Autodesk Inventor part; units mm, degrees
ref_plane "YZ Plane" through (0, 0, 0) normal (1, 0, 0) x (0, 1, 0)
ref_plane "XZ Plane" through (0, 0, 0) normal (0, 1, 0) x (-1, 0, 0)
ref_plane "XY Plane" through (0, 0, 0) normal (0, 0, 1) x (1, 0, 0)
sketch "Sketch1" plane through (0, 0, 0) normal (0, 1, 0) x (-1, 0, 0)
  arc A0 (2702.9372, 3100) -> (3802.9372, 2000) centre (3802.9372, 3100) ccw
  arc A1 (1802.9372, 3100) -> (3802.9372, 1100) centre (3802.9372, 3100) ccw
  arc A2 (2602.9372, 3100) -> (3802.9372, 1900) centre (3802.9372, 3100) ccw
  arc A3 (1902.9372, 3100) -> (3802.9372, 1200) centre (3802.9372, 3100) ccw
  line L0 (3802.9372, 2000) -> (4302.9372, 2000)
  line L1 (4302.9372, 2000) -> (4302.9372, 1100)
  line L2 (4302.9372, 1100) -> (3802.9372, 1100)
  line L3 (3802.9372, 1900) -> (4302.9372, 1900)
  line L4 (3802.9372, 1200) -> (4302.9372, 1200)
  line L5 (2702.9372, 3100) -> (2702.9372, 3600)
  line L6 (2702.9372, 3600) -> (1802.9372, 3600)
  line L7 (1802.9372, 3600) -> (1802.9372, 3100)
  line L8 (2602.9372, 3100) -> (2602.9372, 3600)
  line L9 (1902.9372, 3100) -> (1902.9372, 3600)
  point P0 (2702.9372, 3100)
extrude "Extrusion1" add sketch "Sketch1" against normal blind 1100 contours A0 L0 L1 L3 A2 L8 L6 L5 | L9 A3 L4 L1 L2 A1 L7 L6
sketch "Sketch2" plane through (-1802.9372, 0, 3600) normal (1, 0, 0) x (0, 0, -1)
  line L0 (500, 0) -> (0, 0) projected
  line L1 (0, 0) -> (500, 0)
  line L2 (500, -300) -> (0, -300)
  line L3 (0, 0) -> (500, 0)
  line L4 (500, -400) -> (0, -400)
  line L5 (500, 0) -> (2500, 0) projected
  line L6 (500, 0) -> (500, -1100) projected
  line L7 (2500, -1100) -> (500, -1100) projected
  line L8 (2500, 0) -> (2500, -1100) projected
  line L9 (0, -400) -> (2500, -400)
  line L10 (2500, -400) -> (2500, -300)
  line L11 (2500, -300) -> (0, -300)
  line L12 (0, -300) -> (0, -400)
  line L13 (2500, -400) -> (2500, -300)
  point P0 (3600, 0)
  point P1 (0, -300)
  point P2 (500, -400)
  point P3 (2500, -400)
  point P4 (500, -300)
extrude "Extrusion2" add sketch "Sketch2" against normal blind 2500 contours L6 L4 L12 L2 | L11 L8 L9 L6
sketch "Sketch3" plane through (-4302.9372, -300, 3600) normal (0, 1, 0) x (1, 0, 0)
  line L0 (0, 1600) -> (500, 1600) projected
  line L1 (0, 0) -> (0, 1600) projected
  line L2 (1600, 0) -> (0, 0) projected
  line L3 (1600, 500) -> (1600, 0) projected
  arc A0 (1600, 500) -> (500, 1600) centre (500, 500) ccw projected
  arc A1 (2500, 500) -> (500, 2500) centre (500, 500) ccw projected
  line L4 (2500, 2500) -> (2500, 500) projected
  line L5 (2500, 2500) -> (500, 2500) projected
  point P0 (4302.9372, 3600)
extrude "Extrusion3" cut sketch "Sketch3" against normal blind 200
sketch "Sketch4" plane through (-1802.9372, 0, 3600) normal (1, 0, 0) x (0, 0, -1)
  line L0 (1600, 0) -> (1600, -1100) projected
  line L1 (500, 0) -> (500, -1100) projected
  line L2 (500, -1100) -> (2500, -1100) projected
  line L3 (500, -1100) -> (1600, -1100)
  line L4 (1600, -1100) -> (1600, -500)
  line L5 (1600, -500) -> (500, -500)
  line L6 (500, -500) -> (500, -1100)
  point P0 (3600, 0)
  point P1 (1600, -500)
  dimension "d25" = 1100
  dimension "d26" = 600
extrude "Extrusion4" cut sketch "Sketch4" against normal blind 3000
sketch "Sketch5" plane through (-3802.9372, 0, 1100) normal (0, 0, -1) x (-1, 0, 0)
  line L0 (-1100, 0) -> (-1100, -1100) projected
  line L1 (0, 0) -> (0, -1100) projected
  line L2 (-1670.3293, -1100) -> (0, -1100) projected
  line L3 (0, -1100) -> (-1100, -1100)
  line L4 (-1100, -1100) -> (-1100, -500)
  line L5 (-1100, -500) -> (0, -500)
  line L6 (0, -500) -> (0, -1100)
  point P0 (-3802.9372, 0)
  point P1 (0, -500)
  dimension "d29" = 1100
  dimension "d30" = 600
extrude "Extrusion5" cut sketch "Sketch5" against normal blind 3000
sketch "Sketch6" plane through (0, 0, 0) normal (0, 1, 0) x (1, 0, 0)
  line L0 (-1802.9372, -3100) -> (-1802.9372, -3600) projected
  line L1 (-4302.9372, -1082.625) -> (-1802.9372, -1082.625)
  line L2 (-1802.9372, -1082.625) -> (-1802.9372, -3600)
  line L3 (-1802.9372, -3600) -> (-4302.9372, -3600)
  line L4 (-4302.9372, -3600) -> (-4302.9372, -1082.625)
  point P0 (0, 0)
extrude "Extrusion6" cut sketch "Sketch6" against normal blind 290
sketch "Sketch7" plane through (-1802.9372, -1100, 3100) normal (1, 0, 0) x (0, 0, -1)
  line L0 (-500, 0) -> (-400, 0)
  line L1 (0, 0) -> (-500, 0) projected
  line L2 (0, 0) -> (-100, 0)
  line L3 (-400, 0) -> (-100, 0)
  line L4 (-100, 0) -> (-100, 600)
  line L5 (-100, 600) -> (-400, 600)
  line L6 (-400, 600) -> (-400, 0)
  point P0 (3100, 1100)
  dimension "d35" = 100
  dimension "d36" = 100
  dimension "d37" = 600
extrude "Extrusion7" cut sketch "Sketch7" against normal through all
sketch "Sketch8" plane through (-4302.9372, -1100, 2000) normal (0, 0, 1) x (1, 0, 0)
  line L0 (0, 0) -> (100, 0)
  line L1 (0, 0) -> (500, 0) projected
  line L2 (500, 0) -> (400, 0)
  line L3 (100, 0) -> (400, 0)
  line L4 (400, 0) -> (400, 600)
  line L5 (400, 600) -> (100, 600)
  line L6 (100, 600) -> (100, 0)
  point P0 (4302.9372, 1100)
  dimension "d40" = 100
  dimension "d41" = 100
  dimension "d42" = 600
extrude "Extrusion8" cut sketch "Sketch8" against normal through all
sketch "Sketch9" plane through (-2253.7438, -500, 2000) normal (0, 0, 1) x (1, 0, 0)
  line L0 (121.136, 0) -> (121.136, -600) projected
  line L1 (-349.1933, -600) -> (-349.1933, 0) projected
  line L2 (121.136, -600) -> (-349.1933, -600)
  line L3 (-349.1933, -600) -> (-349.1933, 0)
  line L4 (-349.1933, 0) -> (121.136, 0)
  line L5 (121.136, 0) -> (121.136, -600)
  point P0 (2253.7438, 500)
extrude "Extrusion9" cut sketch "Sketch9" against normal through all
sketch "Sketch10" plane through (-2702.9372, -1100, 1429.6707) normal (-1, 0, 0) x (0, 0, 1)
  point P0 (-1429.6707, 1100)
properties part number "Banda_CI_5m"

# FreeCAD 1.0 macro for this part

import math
import FreeCAD as App
import Part
import Sketcher
from FreeCAD import Vector

doc = App.newDocument("Part")
params = doc.addObject("Spreadsheet::Sheet", "Params")
for row, (alias, value) in enumerate([
    ("sketch1_radius", "1100 mm"),
    ("sketch1_radius2", "1200 mm"),
    ("sketch1_radius3", "2000 mm"),
    ("sketch1_width", "500 mm"),
    ("pad1_length", "1100 mm"),
    ("sketch2_width", "100 mm"),
    ("sketch2_height", "2500 mm"),
    ("pad2_length", "2500 mm"),
    ("sketch3_radius", "1100 mm"),
    ("sketch3_radius2", "2000 mm"),
    ("sketch3_width", "500 mm"),
    ("sketch3_width2", "2000 mm"),
    ("pocket1_length", "200 mm"),
    ("sketch4_width", "600 mm"),
    ("sketch4_height", "1100 mm"),
    ("pocket2_length", "3000 mm"),
    ("sketch5_width", "1100 mm"),
    ("sketch5_height", "600 mm"),
    ("pocket3_length", "3000 mm"),
    ("sketch6_width", "2500 mm"),
    ("pocket4_length", "290 mm"),
    ("sketch7_width", "600 mm"),
    ("sketch7_height", "300 mm"),
    ("sketch8_height", "600 mm"),
    ("sketch8_width", "300 mm"),
    ("sketch9_height", "600 mm"),
], start=1):
    params.set(f"A{row}", alias)
    params.set(f"B{row}", "=" + value)
    params.setAlias(f"B{row}", alias)

body = doc.addObject("PartDesign::Body", "Body")
body.AllowCompound = True

# Sketch on XZ plane
sketch1 = doc.addObject("Sketcher::SketchObject", "Sketch")
body.addObject(sketch1)
sketch1.AttachmentSupport = (doc.XZ_Plane, [""])
sketch1.MapMode = "FlatFace"
sketch1.addGeometry([
    Part.ArcOfCircle(Part.Circle(Vector(-3802.9372, 3100, 0), Vector(0, 0, 1), 1100), math.radians(-90), math.radians(0)),  # 0
    Part.LineSegment(Vector(-2702.9372, 3100, 0), Vector(-2702.9372, 3600, 0)),  # 1
    Part.LineSegment(Vector(-2702.9372, 3600, 0), Vector(-2602.9372, 3600, 0)),  # 2
    Part.LineSegment(Vector(-2602.9372, 3600, 0), Vector(-2602.9372, 3100, 0)),  # 3
    Part.ArcOfCircle(Part.Circle(Vector(-3802.9372, 3100, 0), Vector(0, 0, 1), 1200), math.radians(-90), math.radians(0)),  # 4
    Part.LineSegment(Vector(-3802.9372, 1900, 0), Vector(-4302.9372, 1900, 0)),  # 5
    Part.LineSegment(Vector(-4302.9372, 1900, 0), Vector(-4302.9372, 2000, 0)),  # 6
    Part.LineSegment(Vector(-4302.9372, 2000, 0), Vector(-3802.9372, 2000, 0)),  # 7
    Part.LineSegment(Vector(-1902.9372, 3100, 0), Vector(-1902.9372, 3600, 0)),  # 8
    Part.LineSegment(Vector(-1902.9372, 3600, 0), Vector(-1802.9372, 3600, 0)),  # 9
    Part.LineSegment(Vector(-1802.9372, 3600, 0), Vector(-1802.9372, 3100, 0)),  # 10
    Part.ArcOfCircle(Part.Circle(Vector(-3802.9372, 3100, 0), Vector(0, 0, 1), 2000), math.radians(-90), math.radians(0)),  # 11
    Part.LineSegment(Vector(-3802.9372, 1100, 0), Vector(-4302.9372, 1100, 0)),  # 12
    Part.LineSegment(Vector(-4302.9372, 1100, 0), Vector(-4302.9372, 1200, 0)),  # 13
    Part.LineSegment(Vector(-4302.9372, 1200, 0), Vector(-3802.9372, 1200, 0)),  # 14
    Part.ArcOfCircle(Part.Circle(Vector(-3802.9372, 3100, 0), Vector(0, 0, 1), 1900), math.radians(-90), math.radians(0)),  # 15
], False)
sketch1.addConstraint([
    Sketcher.Constraint("Tangent", 0, 2, 1, 1),
    Sketcher.Constraint("Coincident", 1, 2, 2, 1),
    Sketcher.Constraint("Coincident", 2, 2, 3, 1),
    Sketcher.Constraint("Tangent", 3, 2, 4, 2),
    Sketcher.Constraint("Tangent", 4, 1, 5, 1),
    Sketcher.Constraint("Coincident", 5, 2, 6, 1),
    Sketcher.Constraint("Coincident", 6, 2, 7, 1),
    Sketcher.Constraint("Tangent", 7, 2, 0, 1),
    Sketcher.Constraint("Coincident", 8, 2, 9, 1),
    Sketcher.Constraint("Coincident", 9, 2, 10, 1),
    Sketcher.Constraint("Tangent", 10, 2, 11, 2),
    Sketcher.Constraint("Tangent", 11, 1, 12, 1),
    Sketcher.Constraint("Coincident", 12, 2, 13, 1),
    Sketcher.Constraint("Coincident", 13, 2, 14, 1),
    Sketcher.Constraint("Tangent", 14, 2, 15, 1),
    Sketcher.Constraint("Tangent", 15, 2, 8, 1),
    Sketcher.Constraint("Vertical", 1),
    Sketcher.Constraint("Horizontal", 2),
    Sketcher.Constraint("Vertical", 3),
    Sketcher.Constraint("Horizontal", 5),
    Sketcher.Constraint("Vertical", 6),
    Sketcher.Constraint("Horizontal", 7),
    Sketcher.Constraint("Vertical", 8),
    Sketcher.Constraint("Horizontal", 9),
    Sketcher.Constraint("Vertical", 10),
    Sketcher.Constraint("Horizontal", 12),
    Sketcher.Constraint("Vertical", 13),
    Sketcher.Constraint("Horizontal", 14),
    Sketcher.Constraint("Coincident", 4, 3, 0, 3),
    Sketcher.Constraint("Coincident", 11, 3, 0, 3),
    Sketcher.Constraint("Coincident", 15, 3, 0, 3),
    Sketcher.Constraint("Horizontal", 2, 2, 8, 2),
    Sketcher.Constraint("Vertical", 6, 2, 12, 2),
    Sketcher.Constraint("Equal", 2, 9),
    Sketcher.Constraint("Equal", 14, 1),
    Sketcher.Constraint("Radius", 0, 1100.0),
    Sketcher.Constraint("Radius", 4, 1200.0),
    Sketcher.Constraint("Radius", 11, 2000.0),
    Sketcher.Constraint("DistanceX", 5, 2, 5, 1, 500.0),
    Sketcher.Constraint("DistanceY", -1, 1, 0, 3, 3100.0),
    Sketcher.Constraint("DistanceX", 0, 3, -1, 1, 3802.9372),
])
sketch1.setExpression("Constraints[35]", "Params.sketch1_radius")
sketch1.setExpression("Constraints[36]", "Params.sketch1_radius2")
sketch1.setExpression("Constraints[37]", "Params.sketch1_radius3")
sketch1.setExpression("Constraints[38]", "Params.sketch1_width")
pad1 = doc.addObject("PartDesign::Pad", "Pad")
body.addObject(pad1)
pad1.Profile = sketch1
pad1.setExpression("Length", "Params.pad1_length")

# Sketch on YZ plane
sketch2 = doc.addObject("Sketcher::SketchObject", "Sketch001")
body.addObject(sketch2)
sketch2.AttachmentSupport = (doc.YZ_Plane, [""])
sketch2.MapMode = "FlatFace"
sketch2.AttachmentOffset = App.Placement(Vector(0, 0, -1802.9372), App.Rotation())
sketch2.addGeometry([
    Part.LineSegment(Vector(-400, 3600, 0), Vector(-400, 1100, 0)),
    Part.LineSegment(Vector(-400, 1100, 0), Vector(-300, 1100, 0)),
    Part.LineSegment(Vector(-300, 1100, 0), Vector(-300, 3600, 0)),
    Part.LineSegment(Vector(-300, 3600, 0), Vector(-400, 3600, 0)),
], False)
sketch2.addConstraint([
    Sketcher.Constraint("Coincident", 0, 2, 1, 1),
    Sketcher.Constraint("Coincident", 1, 2, 2, 1),
    Sketcher.Constraint("Coincident", 2, 2, 3, 1),
    Sketcher.Constraint("Coincident", 3, 2, 0, 1),
    Sketcher.Constraint("Vertical", 0),
    Sketcher.Constraint("Horizontal", 1),
    Sketcher.Constraint("Vertical", 2),
    Sketcher.Constraint("Horizontal", 3),
    Sketcher.Constraint("DistanceX", 1, 1, 1, 2, 100.0),
    Sketcher.Constraint("DistanceY", 0, 2, 0, 1, 2500.0),
    Sketcher.Constraint("DistanceX", 0, 2, -1, 1, 400.0),
    Sketcher.Constraint("DistanceY", -1, 1, 0, 2, 1100.0),
])
sketch2.setExpression("Constraints[8]", "Params.sketch2_width")
sketch2.setExpression("Constraints[9]", "Params.sketch2_height")
pad2 = doc.addObject("PartDesign::Pad", "Pad001")
body.addObject(pad2)
pad2.Profile = sketch2
pad2.setExpression("Length", "Params.pad2_length")
pad2.Reversed = True

# Sketch on XZ plane
sketch3 = doc.addObject("Sketcher::SketchObject", "Sketch002")
body.addObject(sketch3)
sketch3.AttachmentSupport = (doc.XZ_Plane, [""])
sketch3.MapMode = "FlatFace"
sketch3.AttachmentOffset = App.Placement(Vector(0, 0, 300), App.Rotation())
sketch3.addGeometry([
    Part.LineSegment(Vector(-3802.9372, 2000, 0), Vector(-4302.9372, 2000, 0)),  # 0
    Part.LineSegment(Vector(-4302.9372, 2000, 0), Vector(-4302.9372, 3600, 0)),  # 1
    Part.LineSegment(Vector(-4302.9372, 3600, 0), Vector(-2702.9372, 3600, 0)),  # 2
    Part.LineSegment(Vector(-2702.9372, 3600, 0), Vector(-2702.9372, 3100, 0)),  # 3
    Part.ArcOfCircle(Part.Circle(Vector(-3802.9372, 3100, 0), Vector(0, 0, 1), 1100), math.radians(-90), math.radians(0)),  # 4
    Part.ArcOfCircle(Part.Circle(Vector(-3802.9372, 3100, 0), Vector(0, 0, 1), 2000), math.radians(-90), math.radians(0)),  # 5
    Part.LineSegment(Vector(-1802.9372, 3100, 0), Vector(-1802.9372, 1100, 0)),  # 6
    Part.LineSegment(Vector(-1802.9372, 1100, 0), Vector(-3802.9372, 1100, 0)),  # 7
], False)
sketch3.addConstraint([
    Sketcher.Constraint("Coincident", 0, 2, 1, 1),
    Sketcher.Constraint("Coincident", 1, 2, 2, 1),
    Sketcher.Constraint("Coincident", 2, 2, 3, 1),
    Sketcher.Constraint("Tangent", 3, 2, 4, 2),
    Sketcher.Constraint("Tangent", 4, 1, 0, 1),
    Sketcher.Constraint("Coincident", 5, 2, 6, 1),
    Sketcher.Constraint("Coincident", 6, 2, 7, 1),
    Sketcher.Constraint("Coincident", 7, 2, 5, 1),
    Sketcher.Constraint("Horizontal", 0),
    Sketcher.Constraint("Vertical", 1),
    Sketcher.Constraint("Horizontal", 2),
    Sketcher.Constraint("Vertical", 3),
    Sketcher.Constraint("Vertical", 6),
    Sketcher.Constraint("Horizontal", 7),
    Sketcher.Constraint("Coincident", 5, 3, 4, 3),
    Sketcher.Constraint("Equal", 2, 1),
    Sketcher.Constraint("Equal", 7, 6),
    Sketcher.Constraint("Radius", 4, 1100.0),
    Sketcher.Constraint("Radius", 5, 2000.0),
    Sketcher.Constraint("DistanceX", 0, 2, 0, 1, 500.0),
    Sketcher.Constraint("DistanceX", 7, 2, 7, 1, 2000.0),
    Sketcher.Constraint("DistanceY", -1, 1, 4, 3, 3100.0),
    Sketcher.Constraint("DistanceX", 4, 3, -1, 1, 3802.9372),
])
sketch3.setExpression("Constraints[17]", "Params.sketch3_radius")
sketch3.setExpression("Constraints[18]", "Params.sketch3_radius2")
sketch3.setExpression("Constraints[19]", "Params.sketch3_width")
sketch3.setExpression("Constraints[20]", "Params.sketch3_width2")
pocket1 = doc.addObject("PartDesign::Pocket", "Pocket")
body.addObject(pocket1)
pocket1.Profile = sketch3
pocket1.setExpression("Length", "Params.pocket1_length")
pocket1.Reversed = True

# Sketch on YZ plane
sketch4 = doc.addObject("Sketcher::SketchObject", "Sketch003")
body.addObject(sketch4)
sketch4.AttachmentSupport = (doc.YZ_Plane, [""])
sketch4.MapMode = "FlatFace"
sketch4.AttachmentOffset = App.Placement(Vector(0, 0, -1802.9372), App.Rotation())
sketch4.addGeometry([
    Part.LineSegment(Vector(-1100, 2000, 0), Vector(-500, 2000, 0)),
    Part.LineSegment(Vector(-500, 2000, 0), Vector(-500, 3100, 0)),
    Part.LineSegment(Vector(-500, 3100, 0), Vector(-1100, 3100, 0)),
    Part.LineSegment(Vector(-1100, 3100, 0), Vector(-1100, 2000, 0)),
], False)
sketch4.addConstraint([
    Sketcher.Constraint("Coincident", 0, 2, 1, 1),
    Sketcher.Constraint("Coincident", 1, 2, 2, 1),
    Sketcher.Constraint("Coincident", 2, 2, 3, 1),
    Sketcher.Constraint("Coincident", 3, 2, 0, 1),
    Sketcher.Constraint("Horizontal", 0),
    Sketcher.Constraint("Vertical", 1),
    Sketcher.Constraint("Horizontal", 2),
    Sketcher.Constraint("Vertical", 3),
    Sketcher.Constraint("DistanceX", 0, 1, 0, 2, 600.0),
    Sketcher.Constraint("DistanceY", 1, 1, 1, 2, 1100.0),
    Sketcher.Constraint("DistanceX", 2, 2, -1, 1, 1100.0),
    Sketcher.Constraint("DistanceY", -1, 1, 0, 2, 2000.0),
])
sketch4.setExpression("Constraints[8]", "Params.sketch4_width")
sketch4.setExpression("Constraints[9]", "Params.sketch4_height")
pocket2 = doc.addObject("PartDesign::Pocket", "Pocket001")
body.addObject(pocket2)
pocket2.Profile = sketch4
pocket2.setExpression("Length", "Params.pocket2_length")

# Sketch on XY plane
sketch5 = doc.addObject("Sketcher::SketchObject", "Sketch004")
body.addObject(sketch5)
sketch5.AttachmentSupport = (doc.XY_Plane, [""])
sketch5.MapMode = "FlatFace"
sketch5.AttachmentOffset = App.Placement(Vector(0, 0, 1100), App.Rotation())
sketch5.addGeometry([
    Part.LineSegment(Vector(-3802.9372, -500, 0), Vector(-2702.9372, -500, 0)),
    Part.LineSegment(Vector(-2702.9372, -500, 0), Vector(-2702.9372, -1100, 0)),
    Part.LineSegment(Vector(-2702.9372, -1100, 0), Vector(-3802.9372, -1100, 0)),
    Part.LineSegment(Vector(-3802.9372, -1100, 0), Vector(-3802.9372, -500, 0)),
], False)
sketch5.addConstraint([
    Sketcher.Constraint("Coincident", 0, 2, 1, 1),
    Sketcher.Constraint("Coincident", 1, 2, 2, 1),
    Sketcher.Constraint("Coincident", 2, 2, 3, 1),
    Sketcher.Constraint("Coincident", 3, 2, 0, 1),
    Sketcher.Constraint("Horizontal", 0),
    Sketcher.Constraint("Vertical", 1),
    Sketcher.Constraint("Horizontal", 2),
    Sketcher.Constraint("Vertical", 3),
    Sketcher.Constraint("DistanceX", 0, 1, 0, 2, 1100.0),
    Sketcher.Constraint("DistanceY", 1, 2, 1, 1, 600.0),
    Sketcher.Constraint("DistanceY", 1, 2, -1, 1, 1100.0),
    Sketcher.Constraint("DistanceX", 0, 2, -1, 1, 2702.9372),
])
sketch5.setExpression("Constraints[8]", "Params.sketch5_width")
sketch5.setExpression("Constraints[9]", "Params.sketch5_height")
pocket3 = doc.addObject("PartDesign::Pocket", "Pocket002")
body.addObject(pocket3)
pocket3.Profile = sketch5
pocket3.setExpression("Length", "Params.pocket3_length")
pocket3.Reversed = True

# Sketch on XZ plane
sketch6 = doc.addObject("Sketcher::SketchObject", "Sketch005")
body.addObject(sketch6)
sketch6.AttachmentSupport = (doc.XZ_Plane, [""])
sketch6.MapMode = "FlatFace"
sketch6.addGeometry([
    Part.LineSegment(Vector(-1802.9372, 3600, 0), Vector(-1802.9372, 1082.625, 0)),
    Part.LineSegment(Vector(-1802.9372, 1082.625, 0), Vector(-4302.9372, 1082.625, 0)),
    Part.LineSegment(Vector(-4302.9372, 1082.625, 0), Vector(-4302.9372, 3600, 0)),
    Part.LineSegment(Vector(-4302.9372, 3600, 0), Vector(-1802.9372, 3600, 0)),
], False)
sketch6.addConstraint([
    Sketcher.Constraint("Coincident", 0, 2, 1, 1),
    Sketcher.Constraint("Coincident", 1, 2, 2, 1),
    Sketcher.Constraint("Coincident", 2, 2, 3, 1),
    Sketcher.Constraint("Coincident", 3, 2, 0, 1),
    Sketcher.Constraint("Vertical", 0),
    Sketcher.Constraint("Horizontal", 1),
    Sketcher.Constraint("Vertical", 2),
    Sketcher.Constraint("Horizontal", 3),
    Sketcher.Constraint("DistanceX", 1, 2, 1, 1, 2500.0),
    Sketcher.Constraint("DistanceY", -1, 1, 2, 2, 3600.0),
    Sketcher.Constraint("DistanceY", 0, 2, 0, 1, 2517.375),
    Sketcher.Constraint("DistanceX", 0, 2, -1, 1, 1802.9372),
])
sketch6.setExpression("Constraints[8]", "Params.sketch6_width")
pocket4 = doc.addObject("PartDesign::Pocket", "Pocket003")
body.addObject(pocket4)
pocket4.Profile = sketch6
pocket4.setExpression("Length", "Params.pocket4_length")
pocket4.Reversed = True

# Sketch on YZ plane
sketch7 = doc.addObject("Sketcher::SketchObject", "Sketch006")
body.addObject(sketch7)
sketch7.AttachmentSupport = (doc.YZ_Plane, [""])
sketch7.MapMode = "FlatFace"
sketch7.AttachmentOffset = App.Placement(Vector(0, 0, -1802.9372), App.Rotation())
sketch7.addGeometry([
    Part.LineSegment(Vector(-1100, 3500, 0), Vector(-1100, 3200, 0)),
    Part.LineSegment(Vector(-1100, 3200, 0), Vector(-500, 3200, 0)),
    Part.LineSegment(Vector(-500, 3200, 0), Vector(-500, 3500, 0)),
    Part.LineSegment(Vector(-500, 3500, 0), Vector(-1100, 3500, 0)),
], False)
sketch7.addConstraint([
    Sketcher.Constraint("Coincident", 0, 2, 1, 1),
    Sketcher.Constraint("Coincident", 1, 2, 2, 1),
    Sketcher.Constraint("Coincident", 2, 2, 3, 1),
    Sketcher.Constraint("Coincident", 3, 2, 0, 1),
    Sketcher.Constraint("Vertical", 0),
    Sketcher.Constraint("Horizontal", 1),
    Sketcher.Constraint("Vertical", 2),
    Sketcher.Constraint("Horizontal", 3),
    Sketcher.Constraint("DistanceX", 1, 1, 1, 2, 600.0),
    Sketcher.Constraint("DistanceY", 0, 2, 0, 1, 300.0),
    Sketcher.Constraint("DistanceX", 0, 2, -1, 1, 1100.0),
    Sketcher.Constraint("DistanceY", -1, 1, 0, 2, 3200.0),
])
sketch7.setExpression("Constraints[8]", "Params.sketch7_width")
sketch7.setExpression("Constraints[9]", "Params.sketch7_height")
pocket5 = doc.addObject("PartDesign::Pocket", "Pocket004")
body.addObject(pocket5)
pocket5.Profile = sketch7
pocket5.Type = "ThroughAll"

# Sketch on XY plane
sketch8 = doc.addObject("Sketcher::SketchObject", "Sketch007")
body.addObject(sketch8)
sketch8.AttachmentSupport = (doc.XY_Plane, [""])
sketch8.MapMode = "FlatFace"
sketch8.AttachmentOffset = App.Placement(Vector(0, 0, 2000), App.Rotation())
sketch8.addGeometry([
    Part.LineSegment(Vector(-4202.9372, -500, 0), Vector(-4202.9372, -1100, 0)),
    Part.LineSegment(Vector(-4202.9372, -1100, 0), Vector(-3902.9372, -1100, 0)),
    Part.LineSegment(Vector(-3902.9372, -1100, 0), Vector(-3902.9372, -500, 0)),
    Part.LineSegment(Vector(-3902.9372, -500, 0), Vector(-4202.9372, -500, 0)),
], False)
sketch8.addConstraint([
    Sketcher.Constraint("Coincident", 0, 2, 1, 1),
    Sketcher.Constraint("Coincident", 1, 2, 2, 1),
    Sketcher.Constraint("Coincident", 2, 2, 3, 1),
    Sketcher.Constraint("Coincident", 3, 2, 0, 1),
    Sketcher.Constraint("Vertical", 0),
    Sketcher.Constraint("Horizontal", 1),
    Sketcher.Constraint("Vertical", 2),
    Sketcher.Constraint("Horizontal", 3),
    Sketcher.Constraint("DistanceY", 0, 2, 0, 1, 600.0),
    Sketcher.Constraint("DistanceX", 1, 1, 1, 2, 300.0),
    Sketcher.Constraint("DistanceY", 0, 2, -1, 1, 1100.0),
    Sketcher.Constraint("DistanceX", 0, 2, -1, 1, 4202.9372),
])
sketch8.setExpression("Constraints[8]", "Params.sketch8_height")
sketch8.setExpression("Constraints[9]", "Params.sketch8_width")
pocket6 = doc.addObject("PartDesign::Pocket", "Pocket005")
body.addObject(pocket6)
pocket6.Profile = sketch8
pocket6.Type = "ThroughAll"

# Sketch on XY plane
sketch9 = doc.addObject("Sketcher::SketchObject", "Sketch008")
body.addObject(sketch9)
sketch9.AttachmentSupport = (doc.XY_Plane, [""])
sketch9.MapMode = "FlatFace"
sketch9.AttachmentOffset = App.Placement(Vector(0, 0, 2000), App.Rotation())
sketch9.addGeometry([
    Part.LineSegment(Vector(-2132.6078, -1100, 0), Vector(-2132.6078, -500, 0)),
    Part.LineSegment(Vector(-2132.6078, -500, 0), Vector(-2602.9371, -500, 0)),
    Part.LineSegment(Vector(-2602.9371, -500, 0), Vector(-2602.9371, -1100, 0)),
    Part.LineSegment(Vector(-2602.9371, -1100, 0), Vector(-2132.6078, -1100, 0)),
], False)
sketch9.addConstraint([
    Sketcher.Constraint("Coincident", 0, 2, 1, 1),
    Sketcher.Constraint("Coincident", 1, 2, 2, 1),
    Sketcher.Constraint("Coincident", 2, 2, 3, 1),
    Sketcher.Constraint("Coincident", 3, 2, 0, 1),
    Sketcher.Constraint("Vertical", 0),
    Sketcher.Constraint("Horizontal", 1),
    Sketcher.Constraint("Vertical", 2),
    Sketcher.Constraint("Horizontal", 3),
    Sketcher.Constraint("DistanceY", 0, 1, 0, 2, 600.0),
    Sketcher.Constraint("DistanceY", 0, 2, -1, 1, 500.0),
    Sketcher.Constraint("DistanceX", 1, 2, 1, 1, 470.3293),
    Sketcher.Constraint("DistanceX", 1, 2, -1, 1, 2602.937),
])
sketch9.setExpression("Constraints[8]", "Params.sketch9_height")
pocket7 = doc.addObject("PartDesign::Pocket", "Pocket006")
body.addObject(pocket7)
pocket7.Profile = sketch9
pocket7.Type = "ThroughAll"

doc.recompute()
